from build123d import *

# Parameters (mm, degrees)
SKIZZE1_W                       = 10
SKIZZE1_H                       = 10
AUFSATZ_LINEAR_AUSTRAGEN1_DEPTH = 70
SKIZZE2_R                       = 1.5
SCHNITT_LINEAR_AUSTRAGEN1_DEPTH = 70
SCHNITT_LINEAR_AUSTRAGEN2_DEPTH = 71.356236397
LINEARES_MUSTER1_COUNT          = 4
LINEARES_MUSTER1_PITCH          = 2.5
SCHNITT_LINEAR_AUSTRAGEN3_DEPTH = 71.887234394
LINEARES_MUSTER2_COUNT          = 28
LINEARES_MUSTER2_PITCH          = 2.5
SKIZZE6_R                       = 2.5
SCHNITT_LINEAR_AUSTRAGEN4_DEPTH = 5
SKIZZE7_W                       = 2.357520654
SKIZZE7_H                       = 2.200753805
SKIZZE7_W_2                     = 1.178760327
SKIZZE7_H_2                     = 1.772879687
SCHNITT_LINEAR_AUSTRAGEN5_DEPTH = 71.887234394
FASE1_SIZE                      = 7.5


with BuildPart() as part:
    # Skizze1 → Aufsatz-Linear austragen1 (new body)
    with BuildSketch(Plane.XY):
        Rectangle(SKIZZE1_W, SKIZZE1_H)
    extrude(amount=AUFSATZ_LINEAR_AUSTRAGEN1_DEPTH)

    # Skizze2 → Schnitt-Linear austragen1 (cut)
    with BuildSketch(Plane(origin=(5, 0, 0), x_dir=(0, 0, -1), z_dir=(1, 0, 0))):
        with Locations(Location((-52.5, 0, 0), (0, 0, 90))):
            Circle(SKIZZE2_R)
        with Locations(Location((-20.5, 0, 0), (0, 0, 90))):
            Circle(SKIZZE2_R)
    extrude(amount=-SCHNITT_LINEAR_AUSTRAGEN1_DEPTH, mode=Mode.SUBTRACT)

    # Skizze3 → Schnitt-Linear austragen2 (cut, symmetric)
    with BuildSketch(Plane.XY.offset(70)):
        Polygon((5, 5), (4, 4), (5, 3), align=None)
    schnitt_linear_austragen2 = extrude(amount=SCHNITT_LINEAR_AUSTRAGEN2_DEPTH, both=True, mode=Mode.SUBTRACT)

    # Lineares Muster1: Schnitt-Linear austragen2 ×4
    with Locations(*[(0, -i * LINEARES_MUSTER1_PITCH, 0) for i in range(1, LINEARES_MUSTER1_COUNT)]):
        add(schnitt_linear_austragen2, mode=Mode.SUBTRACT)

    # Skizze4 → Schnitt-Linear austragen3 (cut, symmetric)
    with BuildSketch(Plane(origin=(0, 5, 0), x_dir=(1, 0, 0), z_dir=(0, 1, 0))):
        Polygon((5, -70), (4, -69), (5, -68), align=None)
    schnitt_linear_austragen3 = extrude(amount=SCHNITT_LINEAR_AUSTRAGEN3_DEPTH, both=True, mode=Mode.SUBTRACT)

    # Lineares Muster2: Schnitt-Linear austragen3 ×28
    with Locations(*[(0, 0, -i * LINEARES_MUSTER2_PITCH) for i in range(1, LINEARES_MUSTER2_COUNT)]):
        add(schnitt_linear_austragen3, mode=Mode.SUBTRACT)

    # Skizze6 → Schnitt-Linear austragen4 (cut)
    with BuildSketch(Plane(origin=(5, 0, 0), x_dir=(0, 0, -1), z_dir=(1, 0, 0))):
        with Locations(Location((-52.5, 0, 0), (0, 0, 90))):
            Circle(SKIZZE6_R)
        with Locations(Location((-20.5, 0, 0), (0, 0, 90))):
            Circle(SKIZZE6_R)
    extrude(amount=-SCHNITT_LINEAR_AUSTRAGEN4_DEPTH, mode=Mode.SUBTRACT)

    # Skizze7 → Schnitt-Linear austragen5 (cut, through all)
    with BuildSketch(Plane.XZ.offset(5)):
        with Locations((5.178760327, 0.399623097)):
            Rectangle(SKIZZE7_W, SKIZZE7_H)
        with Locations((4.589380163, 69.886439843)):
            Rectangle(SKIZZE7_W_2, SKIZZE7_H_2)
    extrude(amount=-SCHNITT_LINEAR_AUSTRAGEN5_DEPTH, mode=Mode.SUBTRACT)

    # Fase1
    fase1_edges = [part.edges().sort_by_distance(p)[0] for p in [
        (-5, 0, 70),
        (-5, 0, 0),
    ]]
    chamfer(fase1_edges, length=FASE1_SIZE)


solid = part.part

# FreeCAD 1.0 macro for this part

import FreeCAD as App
import Part
import Sketcher
from FreeCAD import Vector


def edges_at(feature, points):
    """Names of the edges that pass closest to the given points."""
    edges = feature.Shape.Edges
    near = lambda p: min(range(len(edges)), key=lambda i: edges[i].distToShape(Part.Vertex(*p))[0])
    return sorted({f"Edge{near(p) + 1}" for p in points})


def add_polygon(sketch, points):
    """Adds a closed chain of lines whose ends are joined by coincident constraints."""
    first, n = sketch.GeometryCount, len(points)
    for a, b in zip(points, points[1:] + points[:1]):
        sketch.addGeometry(Part.LineSegment(App.Vector(*a, 0), App.Vector(*b, 0)), False)
    for i in range(n):
        sketch.addConstraint(Sketcher.Constraint("Coincident", first + i, 2, first + (i + 1) % n, 1))

doc = App.newDocument("Part")
body = doc.addObject("PartDesign::Body", "Body")

sketch1 = doc.addObject("Sketcher::SketchObject", "Sketch")
body.addObject(sketch1)
sketch1.AttachmentSupport = (doc.XY_Plane, [""])
sketch1.MapMode = "FlatFace"
add_polygon(sketch1, [(-5, 5), (-5, -5), (5, -5), (5, 5)])
sketch1.addConstraint([
    Sketcher.Constraint("Vertical", 0),
    Sketcher.Constraint("Horizontal", 1),
    Sketcher.Constraint("Vertical", 2),
    Sketcher.Constraint("Horizontal", 3),
    Sketcher.Constraint("Symmetric", 0, 2, 2, 2, -1, 1),
    Sketcher.Constraint("Equal", 3, 0),
    Sketcher.Constraint("DistanceX", 1, 1, 1, 2, 10.0),
])
pad1 = doc.addObject("PartDesign::Pad", "Pad")
body.addObject(pad1)
pad1.Profile = sketch1
pad1.Length = 70

sketch2 = doc.addObject("Sketcher::SketchObject", "Sketch001")
body.addObject(sketch2)
sketch2.AttachmentSupport = (doc.YZ_Plane, [""])
sketch2.MapMode = "FlatFace"
sketch2.AttachmentOffset = App.Placement(Vector(0, 0, 5), App.Rotation())
sketch2.addGeometry([
    Part.Circle(Vector(0, 52.5, 0), Vector(0, 0, 1), 1.5),
    Part.Circle(Vector(0, 20.5, 0), Vector(0, 0, 1), 1.5),
], False)
sketch2.addConstraint([
    Sketcher.Constraint("Equal", 0, 1),
    Sketcher.Constraint("PointOnObject", 0, 3, -2),
    Sketcher.Constraint("PointOnObject", 1, 3, -2),
    Sketcher.Constraint("Diameter", 0, 3.0),
    Sketcher.Constraint("DistanceY", 1, 3, 0, 3, 32.0),
    Sketcher.Constraint("DistanceY", -1, 1, 0, 3, 52.5),
])
pocket1 = doc.addObject("PartDesign::Pocket", "Pocket")
body.addObject(pocket1)
pocket1.Profile = sketch2
pocket1.Length = 70

sketch3 = doc.addObject("Sketcher::SketchObject", "Sketch002")
body.addObject(sketch3)
sketch3.AttachmentSupport = (doc.XY_Plane, [""])
sketch3.MapMode = "FlatFace"
sketch3.AttachmentOffset = App.Placement(Vector(0, 0, 70), App.Rotation())
add_polygon(sketch3, [(5, 5), (4, 4), (5, 3)])
sketch3.addConstraint([
    Sketcher.Constraint("Vertical", 2),
    Sketcher.Constraint("Perpendicular", 0, 1),
    Sketcher.Constraint("Equal", 0, 1),
    Sketcher.Constraint("DistanceY", 2, 1, 2, 2, 2.0),
    Sketcher.Constraint("DistanceX", -1, 1, 0, 2, 4.0),
    Sketcher.Constraint("DistanceY", -1, 1, 0, 2, 4.0),
])
pocket2 = doc.addObject("PartDesign::Pocket", "Pocket001")
body.addObject(pocket2)
pocket2.Profile = sketch3
pocket2.Length = 142.712473
pocket2.Midplane = True
doc.recompute()

linearpattern = doc.addObject("PartDesign::LinearPattern", "LinearPattern")
body.addObject(linearpattern)
linearpattern.Originals = [pocket2]
linearpattern.Direction = (doc.Y_Axis, [""])
linearpattern.Mode = "offset"
linearpattern.Offset = 2.5
linearpattern.Occurrences = 4
linearpattern.Reversed = True
body.Tip = linearpattern

sketch4 = doc.addObject("Sketcher::SketchObject", "Sketch003")
body.addObject(sketch4)
sketch4.AttachmentSupport = (doc.XZ_Plane, [""])
sketch4.MapMode = "FlatFace"
sketch4.AttachmentOffset = App.Placement(Vector(0, 0, -5), App.Rotation())
add_polygon(sketch4, [(4, 69), (5, 70), (5, 68)])
sketch4.addConstraint([
    Sketcher.Constraint("Vertical", 1),
    Sketcher.Constraint("Perpendicular", 0, 2),
    Sketcher.Constraint("Equal", 0, 2),
    Sketcher.Constraint("DistanceY", 1, 2, 1, 1, 2.0),
    Sketcher.Constraint("DistanceX", -1, 1, 0, 2, 5.0),
    Sketcher.Constraint("DistanceY", -1, 1, 0, 2, 70.0),
])
pocket3 = doc.addObject("PartDesign::Pocket", "Pocket002")
body.addObject(pocket3)
pocket3.Profile = sketch4
pocket3.Length = 143.774469
pocket3.Midplane = True
doc.recompute()

linearpattern2 = doc.addObject("PartDesign::LinearPattern", "LinearPattern001")
body.addObject(linearpattern2)
linearpattern2.Originals = [pocket3]
linearpattern2.Direction = (doc.Z_Axis, [""])
linearpattern2.Mode = "offset"
linearpattern2.Offset = 2.5
linearpattern2.Occurrences = 28
linearpattern2.Reversed = True
body.Tip = linearpattern2

sketch5 = doc.addObject("Sketcher::SketchObject", "Sketch004")
body.addObject(sketch5)
sketch5.AttachmentSupport = (doc.YZ_Plane, [""])
sketch5.MapMode = "FlatFace"
sketch5.AttachmentOffset = App.Placement(Vector(0, 0, 5), App.Rotation())
sketch5.addGeometry([
    Part.Circle(Vector(0, 52.5, 0), Vector(0, 0, 1), 2.5),
    Part.Circle(Vector(0, 20.5, 0), Vector(0, 0, 1), 2.5),
], False)
sketch5.addConstraint([
    Sketcher.Constraint("Equal", 0, 1),
    Sketcher.Constraint("PointOnObject", 0, 3, -2),
    Sketcher.Constraint("PointOnObject", 1, 3, -2),
    Sketcher.Constraint("Diameter", 0, 5.0),
    Sketcher.Constraint("DistanceY", 1, 3, 0, 3, 32.0),
    Sketcher.Constraint("DistanceY", -1, 1, 0, 3, 52.5),
])
pocket4 = doc.addObject("PartDesign::Pocket", "Pocket003")
body.addObject(pocket4)
pocket4.Profile = sketch5
pocket4.Length = 5

sketch6 = doc.addObject("Sketcher::SketchObject", "Sketch005")
body.addObject(sketch6)
sketch6.AttachmentSupport = (doc.XZ_Plane, [""])
sketch6.MapMode = "FlatFace"
sketch6.AttachmentOffset = App.Placement(Vector(0, 0, 5), App.Rotation())
add_polygon(sketch6, [(4, 1.5), (4, -0.7), (6.4, -0.7), (6.4, 1.5)])
add_polygon(sketch6, [(4, 70.8), (4, 69), (5.2, 69), (5.2, 70.8)])
sketch6.addConstraint([
    Sketcher.Constraint("Vertical", 0),
    Sketcher.Constraint("Horizontal", 1),
    Sketcher.Constraint("Vertical", 2),
    Sketcher.Constraint("Horizontal", 3),
    Sketcher.Constraint("Vertical", 4),
    Sketcher.Constraint("Horizontal", 5),
    Sketcher.Constraint("Vertical", 6),
    Sketcher.Constraint("Horizontal", 7),
    Sketcher.Constraint("Vertical", 3, 2, 4, 2),
    Sketcher.Constraint("DistanceX", -1, 1, 0, 2, 4.0),
    Sketcher.Constraint("DistanceY", -1, 1, 4, 2, 69.0),
    Sketcher.Constraint("DistanceY", -1, 1, 2, 2, 1.5),
    Sketcher.Constraint("DistanceX", 1, 1, 1, 2, 2.357521),
    Sketcher.Constraint("DistanceX", 5, 1, 5, 2, 1.17876),
    Sketcher.Constraint("DistanceY", 4, 2, 4, 1, 1.77288),
    Sketcher.Constraint("DistanceY", 0, 2, 0, 1, 2.200754),
])
pocket5 = doc.addObject("PartDesign::Pocket", "Pocket004")
body.addObject(pocket5)
pocket5.Profile = sketch6
pocket5.Type = "ThroughAll"
doc.recompute()

chamfer = doc.addObject("PartDesign::Chamfer", "Chamfer")
body.addObject(chamfer)
chamfer.Base = (pocket5, edges_at(pocket5, [(-5, 0, 70), (-5, 0, 0)]))
chamfer.Size = 7.5

doc.recompute()
